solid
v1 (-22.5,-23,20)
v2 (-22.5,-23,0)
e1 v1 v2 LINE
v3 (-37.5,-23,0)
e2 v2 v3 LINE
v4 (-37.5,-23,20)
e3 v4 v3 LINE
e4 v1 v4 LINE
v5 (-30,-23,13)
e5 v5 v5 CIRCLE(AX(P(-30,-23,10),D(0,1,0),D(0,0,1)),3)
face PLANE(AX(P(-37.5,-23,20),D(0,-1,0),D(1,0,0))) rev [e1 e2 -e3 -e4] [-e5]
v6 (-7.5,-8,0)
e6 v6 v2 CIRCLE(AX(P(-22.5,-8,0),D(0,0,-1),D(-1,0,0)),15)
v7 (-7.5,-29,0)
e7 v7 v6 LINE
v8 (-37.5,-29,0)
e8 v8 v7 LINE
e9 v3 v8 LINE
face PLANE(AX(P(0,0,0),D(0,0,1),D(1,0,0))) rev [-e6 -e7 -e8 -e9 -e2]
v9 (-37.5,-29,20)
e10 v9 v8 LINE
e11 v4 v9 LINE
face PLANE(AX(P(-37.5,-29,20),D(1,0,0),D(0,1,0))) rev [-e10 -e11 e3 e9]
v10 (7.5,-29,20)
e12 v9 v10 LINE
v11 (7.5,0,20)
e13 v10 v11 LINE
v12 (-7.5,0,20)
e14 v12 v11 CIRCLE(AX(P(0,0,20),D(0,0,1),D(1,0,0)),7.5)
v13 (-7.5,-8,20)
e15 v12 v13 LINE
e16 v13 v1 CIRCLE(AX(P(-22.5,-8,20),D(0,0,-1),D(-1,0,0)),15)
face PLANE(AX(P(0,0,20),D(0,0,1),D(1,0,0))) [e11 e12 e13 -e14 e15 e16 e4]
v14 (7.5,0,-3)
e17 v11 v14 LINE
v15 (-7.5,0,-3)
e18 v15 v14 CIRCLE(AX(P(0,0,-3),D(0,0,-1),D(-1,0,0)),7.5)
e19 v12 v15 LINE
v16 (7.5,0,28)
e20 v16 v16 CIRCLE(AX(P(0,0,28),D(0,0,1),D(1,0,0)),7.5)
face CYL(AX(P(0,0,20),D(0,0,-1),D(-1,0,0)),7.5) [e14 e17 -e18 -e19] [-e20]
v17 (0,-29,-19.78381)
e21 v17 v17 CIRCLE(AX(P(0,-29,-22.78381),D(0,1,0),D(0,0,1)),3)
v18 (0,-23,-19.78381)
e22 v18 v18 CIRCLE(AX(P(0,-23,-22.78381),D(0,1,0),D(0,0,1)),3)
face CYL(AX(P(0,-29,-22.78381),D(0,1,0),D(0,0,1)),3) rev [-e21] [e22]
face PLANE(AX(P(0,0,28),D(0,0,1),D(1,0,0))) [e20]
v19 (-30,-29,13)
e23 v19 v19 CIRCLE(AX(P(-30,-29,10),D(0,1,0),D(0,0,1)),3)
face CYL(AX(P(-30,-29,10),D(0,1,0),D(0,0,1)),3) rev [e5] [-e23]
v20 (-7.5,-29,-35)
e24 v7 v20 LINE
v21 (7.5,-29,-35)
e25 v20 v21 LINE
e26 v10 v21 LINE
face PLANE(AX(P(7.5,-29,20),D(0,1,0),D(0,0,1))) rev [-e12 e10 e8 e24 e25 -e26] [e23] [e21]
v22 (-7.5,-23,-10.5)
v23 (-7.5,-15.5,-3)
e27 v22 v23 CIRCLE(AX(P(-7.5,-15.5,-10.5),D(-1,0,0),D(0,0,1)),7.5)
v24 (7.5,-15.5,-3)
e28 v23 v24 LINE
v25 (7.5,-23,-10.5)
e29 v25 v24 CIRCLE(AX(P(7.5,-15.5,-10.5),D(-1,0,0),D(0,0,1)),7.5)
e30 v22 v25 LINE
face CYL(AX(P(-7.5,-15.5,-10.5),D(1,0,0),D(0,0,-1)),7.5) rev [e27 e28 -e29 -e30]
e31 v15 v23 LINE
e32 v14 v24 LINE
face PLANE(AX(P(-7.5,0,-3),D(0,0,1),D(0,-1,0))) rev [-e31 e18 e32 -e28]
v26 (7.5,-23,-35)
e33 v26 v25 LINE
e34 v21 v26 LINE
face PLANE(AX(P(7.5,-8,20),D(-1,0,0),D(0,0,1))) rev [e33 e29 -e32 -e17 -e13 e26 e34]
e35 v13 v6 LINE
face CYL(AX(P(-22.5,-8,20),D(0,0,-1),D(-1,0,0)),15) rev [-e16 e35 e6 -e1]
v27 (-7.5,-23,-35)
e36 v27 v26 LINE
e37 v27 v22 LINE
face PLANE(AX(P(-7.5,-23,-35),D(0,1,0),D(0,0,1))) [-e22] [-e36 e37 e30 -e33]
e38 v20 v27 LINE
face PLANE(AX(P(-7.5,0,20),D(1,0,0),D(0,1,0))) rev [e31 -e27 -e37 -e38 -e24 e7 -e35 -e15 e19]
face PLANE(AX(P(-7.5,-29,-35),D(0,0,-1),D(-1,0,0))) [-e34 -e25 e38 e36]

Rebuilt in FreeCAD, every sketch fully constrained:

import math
import FreeCAD as App
import Part
import Sketcher
from FreeCAD import Vector

doc = App.newDocument("Part")
params = doc.addObject("Spreadsheet::Sheet", "Params")
for row, (alias, value) in enumerate([
    ("sketch1_radius", "15 mm"),
    ("sketch1_radius2", "7.5 mm"),
    ("sketch1_width", "15 mm"),
    ("sketch1_height", "8 mm"),
    ("sketch1_height2", "6 mm"),
    ("pad1_length", "20 mm"),
    ("sketch2_diameter", "15 mm"),
    ("pad2_length", "8 mm"),
    ("sketch3_radius", "7.5 mm"),
    ("sketch3_width", "6 mm"),
    ("sketch3_width2", "29 mm"),
    ("sketch3_height", "35 mm"),
    ("sketch3_height2", "3 mm"),
    ("pad3_length", "15 mm"),
    ("sketch4_diameter", "15 mm"),
    ("pad4_length", "3 mm"),
    ("sketch5_diameter", "6 mm"),
], start=1):
    params.set(f"A{row}", alias)
    params.set(f"B{row}", "=" + value)
    params.setAlias(f"B{row}", alias)

body = doc.addObject("PartDesign::Body", "Body")

# Sketch on XY plane
sketch1 = body.newObject("Sketcher::SketchObject", "Sketch")
sketch1.AttachmentSupport = (doc.getObject("XY_Plane"), [""])
sketch1.MapMode = "FlatFace"
sketch1.addGeometry([
    Part.LineSegment(Vector(-8, 0, 0), Vector(-8, -8, 0)),  # 0
    Part.ArcOfCircle(Part.Circle(Vector(-22, -8, 0), Vector(0, 0, 1), 15), math.radians(-90), math.radians(0)),  # 1
    Part.LineSegment(Vector(-22, -23, 0), Vector(-38, -23, 0)),  # 2
    Part.LineSegment(Vector(-38, -23, 0), Vector(-38, -29, 0)),  # 3
    Part.LineSegment(Vector(-38, -29, 0), Vector(8, -29, 0)),  # 4
    Part.LineSegment(Vector(8, -29, 0), Vector(8, 0, 0)),  # 5
    Part.ArcOfCircle(Part.Circle(Vector(0, 0, 0), Vector(0, 0, 1), 8), math.radians(0), math.radians(180)),  # 6
], False)
sketch1.addConstraint([
    Sketcher.Constraint("Tangent", 0, 2, 1, 2),
    Sketcher.Constraint("Tangent", 1, 1, 2, 1),
    Sketcher.Constraint("Coincident", 2, 2, 3, 1),
    Sketcher.Constraint("Coincident", 3, 2, 4, 1),
    Sketcher.Constraint("Coincident", 4, 2, 5, 1),
    Sketcher.Constraint("Tangent", 5, 2, 6, 1),
    Sketcher.Constraint("Tangent", 6, 2, 0, 1),
    Sketcher.Constraint("Vertical", 0),
    Sketcher.Constraint("Horizontal", 2),
    Sketcher.Constraint("Vertical", 3),
    Sketcher.Constraint("Horizontal", 4),
    Sketcher.Constraint("Vertical", 5),
    Sketcher.Constraint("Coincident", 6, 3, -1, 1),
    Sketcher.Constraint("Radius", 1, 15.0),
    Sketcher.Constraint("Radius", 6, 7.5),
    Sketcher.Constraint("DistanceX", 2, 2, 2, 1, 15.0),
    Sketcher.Constraint("DistanceY", 0, 2, 0, 1, 8.0),
    Sketcher.Constraint("DistanceY", 3, 2, 3, 1, 6.0),
])
sketch1.setExpression("Constraints[13]", "Params.sketch1_radius")
sketch1.setExpression("Constraints[14]", "Params.sketch1_radius2")
sketch1.setExpression("Constraints[15]", "Params.sketch1_width")
sketch1.setExpression("Constraints[16]", "Params.sketch1_height")
sketch1.setExpression("Constraints[17]", "Params.sketch1_height2")
pad1 = body.newObject("PartDesign::Pad", "Pad")
pad1.Profile = sketch1
pad1.setExpression("Length", "Params.pad1_length")

# Sketch on XY plane
sketch2 = body.newObject("Sketcher::SketchObject", "Sketch001")
sketch2.AttachmentSupport = (doc.getObject("XY_Plane"), [""])
sketch2.MapMode = "FlatFace"
sketch2.AttachmentOffset = App.Placement(Vector(0, 0, 20), App.Rotation())
sketch2.addGeometry(Part.Circle(Vector(0, 0, 0), Vector(0, 0, 1), 8), False)
sketch2.addConstraint([
    Sketcher.Constraint("Coincident", 0, 3, -1, 1),
    Sketcher.Constraint("Diameter", 0, 15.0),
])
sketch2.setExpression("Constraints[1]", "Params.sketch2_diameter")
pad2 = body.newObject("PartDesign::Pad", "Pad001")
pad2.Profile = sketch2
pad2.setExpression("Length", "Params.pad2_length")

# Sketch on YZ plane
sketch3 = body.newObject("Sketcher::SketchObject", "Sketch002")
sketch3.AttachmentSupport = (doc.getObject("YZ_Plane"), [""])
sketch3.MapMode = "FlatFace"
sketch3.AttachmentOffset = App.Placement(Vector(0, 0, 7.5), App.Rotation())
sketch3.addGeometry([
    Part.LineSegment(Vector(-29, 0, 0), Vector(-29, -35, 0)),  # 0
    Part.LineSegment(Vector(-29, -35, 0), Vector(-23, -35, 0)),  # 1
    Part.LineSegment(Vector(-23, -35, 0), Vector(-23, -10.5, 0)),  # 2
    Part.ArcOfCircle(Part.Circle(Vector(-15.5, -10.5, 0), Vector(0, 0, 1), 7.5), math.radians(90), math.radians(180)),  # 3
    Part.LineSegment(Vector(-15.5, -3, 0), Vector(0, -3, 0)),  # 4
    Part.LineSegment(Vector(0, -3, 0), Vector(0, 0, 0)),  # 5
    Part.LineSegment(Vector(0, 0, 0), Vector(-29, 0, 0)),  # 6
], False)
sketch3.addConstraint([
    Sketcher.Constraint("Coincident", 0, 2, 1, 1),
    Sketcher.Constraint("Coincident", 1, 2, 2, 1),
    Sketcher.Constraint("Tangent", 2, 2, 3, 2),
    Sketcher.Constraint("Tangent", 3, 1, 4, 1),
    Sketcher.Constraint("Coincident", 4, 2, 5, 1),
    Sketcher.Constraint("Coincident", 5, 2, 6, 1),
    Sketcher.Constraint("Coincident", 6, 2, 0, 1),
    Sketcher.Constraint("Vertical", 0),
    Sketcher.Constraint("Horizontal", 1),
    Sketcher.Constraint("Vertical", 2),
    Sketcher.Constraint("Horizontal", 4),
    Sketcher.Constraint("Vertical", 5),
    Sketcher.Constraint("Horizontal", 6),
    Sketcher.Constraint("Coincident", 5, 2, -1, 1),
    Sketcher.Constraint("Radius", 3, 7.5),
    Sketcher.Constraint("DistanceX", 1, 1, 1, 2, 6.0),
    Sketcher.Constraint("DistanceX", 6, 2, 6, 1, 29.0),
    Sketcher.Constraint("DistanceY", 0, 2, 0, 1, 35.0),
    Sketcher.Constraint("DistanceY", 5, 1, 5, 2, 3.0),
])
sketch3.setExpression("Constraints[14]", "Params.sketch3_radius")
sketch3.setExpression("Constraints[15]", "Params.sketch3_width")
sketch3.setExpression("Constraints[16]", "Params.sketch3_width2")
sketch3.setExpression("Constraints[17]", "Params.sketch3_height")
sketch3.setExpression("Constraints[18]", "Params.sketch3_height2")
pad3 = body.newObject("PartDesign::Pad", "Pad002")
pad3.Profile = sketch3
pad3.setExpression("Length", "Params.pad3_length")
pad3.Reversed = True

# Sketch on XY plane
sketch4 = body.newObject("Sketcher::SketchObject", "Sketch003")
sketch4.AttachmentSupport = (doc.getObject("XY_Plane"), [""])
sketch4.MapMode = "FlatFace"
sketch4.AttachmentOffset = App.Placement(Vector(0, 0, -3), App.Rotation())
sketch4.addGeometry(Part.Circle(Vector(0, 0, 0), Vector(0, 0, 1), 8), False)
sketch4.addConstraint([
    Sketcher.Constraint("Coincident", 0, 3, -1, 1),
    Sketcher.Constraint("Diameter", 0, 15.0),
])
sketch4.setExpression("Constraints[1]", "Params.sketch4_diameter")
pad4 = body.newObject("PartDesign::Pad", "Pad003")
pad4.Profile = sketch4
pad4.setExpression("Length", "Params.pad4_length")

# Sketch on XZ plane
sketch5 = body.newObject("Sketcher::SketchObject", "Sketch004")
sketch5.AttachmentSupport = (doc.getObject("XZ_Plane"), [""])
sketch5.MapMode = "FlatFace"
sketch5.AttachmentOffset = App.Placement(Vector(0, 0, 23), App.Rotation())
sketch5.addGeometry([
    Part.Circle(Vector(0, -22.8, 0), Vector(0, 0, 1), 3),
    Part.Circle(Vector(-30, 10, 0), Vector(0, 0, 1), 3),
], False)
sketch5.addConstraint([
    Sketcher.Constraint("Equal", 0, 1),
    Sketcher.Constraint("PointOnObject", 0, 3, -2),
    Sketcher.Constraint("Diameter", 0, 6.0),
    Sketcher.Constraint("DistanceX", 1, 3, -1, 1, 30.0),
    Sketcher.Constraint("DistanceY", -1, 1, 1, 3, 10.0),
    Sketcher.Constraint("DistanceY", 0, 3, -1, 1, 22.78381),
])
sketch5.setExpression("Constraints[2]", "Params.sketch5_diameter")
pocket1 = body.newObject("PartDesign::Pocket", "Pocket")
pocket1.Profile = sketch5
pocket1.Type = "ThroughAll"
pocket1.Reversed = True

doc.recompute()
